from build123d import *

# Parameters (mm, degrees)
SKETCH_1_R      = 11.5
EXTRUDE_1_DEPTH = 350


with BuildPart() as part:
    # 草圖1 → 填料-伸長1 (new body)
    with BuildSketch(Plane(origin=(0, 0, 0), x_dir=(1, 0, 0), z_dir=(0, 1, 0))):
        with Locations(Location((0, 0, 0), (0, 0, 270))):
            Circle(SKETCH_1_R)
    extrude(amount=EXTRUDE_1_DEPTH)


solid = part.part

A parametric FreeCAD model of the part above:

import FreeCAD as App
import Part
import Sketcher

V = App.Vector

doc = App.newDocument("Part")
params = doc.addObject("Spreadsheet::Sheet", "Params")
for row, (alias, value) in enumerate([
    ("sketch1_diameter", "23 mm"),
    ("pad1_length", "350 mm"),
], start=1):
    params.set(f"A{row}", alias)
    params.set(f"B{row}", "=" + value)
    params.setAlias(f"B{row}", alias)

body = doc.addObject("PartDesign::Body", "Body")

sketch1 = body.newObject("Sketcher::SketchObject", "Sketch")
sketch1.AttachmentSupport = (doc.getObject("XZ_Plane"), [""])
sketch1.MapMode = "FlatFace"
sketch1.addGeometry(Part.Circle(V(0, 0, 0), V(0, 0, 1), 11.5), False)
sketch1.addConstraint(Sketcher.Constraint("Coincident", 0, 3, -1, 1))
sketch1.addConstraint(Sketcher.Constraint("Diameter", 0, 23.0))
sketch1.setExpression("Constraints[1]", "Params.sketch1_diameter")
pad1 = body.newObject("PartDesign::Pad", "Pad")
pad1.Profile = sketch1
pad1.setExpression("Length", "Params.pad1_length")
pad1.Reversed = True

doc.recompute()
